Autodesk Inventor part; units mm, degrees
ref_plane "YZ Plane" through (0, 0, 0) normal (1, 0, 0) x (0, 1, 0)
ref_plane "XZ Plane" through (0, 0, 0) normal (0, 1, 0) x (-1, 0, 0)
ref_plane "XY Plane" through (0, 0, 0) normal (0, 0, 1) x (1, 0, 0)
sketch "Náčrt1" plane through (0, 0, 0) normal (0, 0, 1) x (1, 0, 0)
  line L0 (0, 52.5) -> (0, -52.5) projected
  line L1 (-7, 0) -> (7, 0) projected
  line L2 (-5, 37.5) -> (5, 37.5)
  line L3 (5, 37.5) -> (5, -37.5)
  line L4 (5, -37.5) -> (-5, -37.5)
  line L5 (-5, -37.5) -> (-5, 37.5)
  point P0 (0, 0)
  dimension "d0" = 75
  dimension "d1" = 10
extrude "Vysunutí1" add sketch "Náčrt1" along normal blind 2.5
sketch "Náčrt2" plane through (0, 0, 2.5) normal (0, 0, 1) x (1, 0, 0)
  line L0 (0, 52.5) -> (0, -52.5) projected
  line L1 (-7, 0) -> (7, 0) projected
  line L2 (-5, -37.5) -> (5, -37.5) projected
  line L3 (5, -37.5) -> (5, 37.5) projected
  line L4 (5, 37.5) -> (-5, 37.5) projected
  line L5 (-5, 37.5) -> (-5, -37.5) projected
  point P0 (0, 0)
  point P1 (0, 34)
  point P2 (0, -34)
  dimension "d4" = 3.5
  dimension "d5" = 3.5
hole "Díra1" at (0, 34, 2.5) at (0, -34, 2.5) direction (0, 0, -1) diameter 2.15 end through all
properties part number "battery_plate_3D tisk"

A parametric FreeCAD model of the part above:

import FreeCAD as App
import Part
import Sketcher
from FreeCAD import Vector

doc = App.newDocument("Part")
body = doc.addObject("PartDesign::Body", "Body")

sketch1 = body.newObject("Sketcher::SketchObject", "Sketch")
sketch1.AttachmentSupport = (doc.getObject("XY_Plane"), [""])
sketch1.MapMode = "FlatFace"
sketch1.addGeometry([
    Part.LineSegment(Vector(5, 38, 0), Vector(-5, 38, 0)),
    Part.LineSegment(Vector(-5, 38, 0), Vector(-5, -38, 0)),
    Part.LineSegment(Vector(-5, -38, 0), Vector(5, -38, 0)),
    Part.LineSegment(Vector(5, -38, 0), Vector(5, 38, 0)),
], False)
sketch1.addConstraint([
    Sketcher.Constraint("Coincident", 0, 2, 1, 1),
    Sketcher.Constraint("Coincident", 1, 2, 2, 1),
    Sketcher.Constraint("Coincident", 2, 2, 3, 1),
    Sketcher.Constraint("Coincident", 3, 2, 0, 1),
    Sketcher.Constraint("Horizontal", 0),
    Sketcher.Constraint("Vertical", 1),
    Sketcher.Constraint("Horizontal", 2),
    Sketcher.Constraint("Vertical", 3),
    Sketcher.Constraint("Symmetric", 0, 2, 2, 2, -1, 1),
    Sketcher.Constraint("DistanceX", 0, 2, 0, 1, 10.0),
    Sketcher.Constraint("DistanceY", 1, 2, 1, 1, 75.0),
])
pad1 = body.newObject("PartDesign::Pad", "Pad")
pad1.Profile = sketch1
pad1.Length = 2.5

sketch2 = body.newObject("Sketcher::SketchObject", "Sketch001")
sketch2.AttachmentSupport = (doc.getObject("XY_Plane"), [""])
sketch2.MapMode = "FlatFace"
sketch2.AttachmentOffset = App.Placement(Vector(0, 0, 2.5), App.Rotation())
sketch2.addGeometry([
    Part.Circle(Vector(0, 34, 0), Vector(0, 0, 1), 1.1),
    Part.Circle(Vector(0, -34, 0), Vector(0, 0, 1), 1.1),
], False)
sketch2.addConstraint([
    Sketcher.Constraint("Equal", 0, 1),
    Sketcher.Constraint("Symmetric", 0, 3, 1, 3, -1, 1),
    Sketcher.Constraint("PointOnObject", 0, 3, -2),
    Sketcher.Constraint("Diameter", 0, 2.15),
    Sketcher.Constraint("DistanceY", -1, 1, 0, 3, 34.0),
])
doc.recompute()
hole = body.newObject("PartDesign::Hole", "Hole")
hole.Profile = sketch2
hole.ThreadType = "None"
hole.Diameter = 2.15
hole.DepthType = "ThroughAll"

doc.recompute()
